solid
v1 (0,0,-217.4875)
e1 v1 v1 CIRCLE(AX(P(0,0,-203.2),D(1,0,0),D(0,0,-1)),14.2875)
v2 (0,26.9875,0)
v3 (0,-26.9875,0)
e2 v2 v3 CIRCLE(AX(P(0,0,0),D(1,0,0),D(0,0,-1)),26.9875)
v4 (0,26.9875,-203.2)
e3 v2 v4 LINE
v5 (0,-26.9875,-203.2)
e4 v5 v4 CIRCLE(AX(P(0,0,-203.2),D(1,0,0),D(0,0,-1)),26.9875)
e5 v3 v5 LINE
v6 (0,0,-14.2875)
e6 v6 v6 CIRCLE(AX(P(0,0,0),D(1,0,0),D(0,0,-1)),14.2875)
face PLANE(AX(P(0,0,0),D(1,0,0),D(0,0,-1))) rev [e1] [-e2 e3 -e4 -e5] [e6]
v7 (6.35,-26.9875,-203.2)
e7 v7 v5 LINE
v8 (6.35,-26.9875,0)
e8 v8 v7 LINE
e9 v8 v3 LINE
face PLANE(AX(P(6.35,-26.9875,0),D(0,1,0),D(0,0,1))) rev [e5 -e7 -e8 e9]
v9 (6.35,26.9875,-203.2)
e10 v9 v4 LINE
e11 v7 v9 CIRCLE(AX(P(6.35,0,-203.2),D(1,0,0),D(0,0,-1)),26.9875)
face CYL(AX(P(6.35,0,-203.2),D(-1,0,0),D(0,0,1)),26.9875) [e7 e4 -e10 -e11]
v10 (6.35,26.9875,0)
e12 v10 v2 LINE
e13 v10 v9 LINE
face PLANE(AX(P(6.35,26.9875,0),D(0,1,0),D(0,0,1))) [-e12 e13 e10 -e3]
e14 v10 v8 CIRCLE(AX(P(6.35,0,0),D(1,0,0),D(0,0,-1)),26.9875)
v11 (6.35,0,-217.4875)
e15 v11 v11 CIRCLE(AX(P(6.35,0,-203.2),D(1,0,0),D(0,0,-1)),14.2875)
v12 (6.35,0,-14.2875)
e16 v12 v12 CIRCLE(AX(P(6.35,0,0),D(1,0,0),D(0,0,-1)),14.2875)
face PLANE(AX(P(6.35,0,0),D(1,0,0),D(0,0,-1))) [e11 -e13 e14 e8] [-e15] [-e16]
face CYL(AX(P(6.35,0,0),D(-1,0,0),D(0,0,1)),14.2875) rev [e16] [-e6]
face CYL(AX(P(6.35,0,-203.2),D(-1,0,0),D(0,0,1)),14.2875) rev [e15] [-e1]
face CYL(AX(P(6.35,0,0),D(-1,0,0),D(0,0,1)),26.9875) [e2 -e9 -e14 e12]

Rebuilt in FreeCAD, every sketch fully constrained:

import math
import FreeCAD as App
import Part
import Sketcher
Q = App.Units.Quantity

doc = App.newDocument("Part")
body = doc.addObject("PartDesign::Body", "Body")

# Sketch on YZ plane
sketch1 = doc.addObject("Sketcher::SketchObject", "Sketch")
body.addObject(sketch1)
sketch1.AttachmentSupport = (doc.YZ_Plane, [""])
sketch1.MapMode = "FlatFace"
sketch1.addGeometry(Part.LineSegment(App.Vector(27, -203, 0), App.Vector(27, 0, 0)), False)
sketch1.addGeometry(Part.ArcOfCircle(Part.Circle(App.Vector(0, 0, 0), App.Vector(0, 0, 1), 27), math.radians(0), math.radians(180)), False)
sketch1.addGeometry(Part.LineSegment(App.Vector(-27, 0, 0), App.Vector(-27, -203, 0)), False)
sketch1.addGeometry(Part.ArcOfCircle(Part.Circle(App.Vector(0, -203, 0), App.Vector(0, 0, 1), 27), math.radians(180), math.radians(360)), False)
sketch1.addGeometry(Part.Circle(App.Vector(0, -203, 0), App.Vector(0, 0, 1), 14), False)
sketch1.addGeometry(Part.Circle(App.Vector(0, 0, 0), App.Vector(0, 0, 1), 14), False)
sketch1.addConstraint(Sketcher.Constraint("Tangent", 0, 2, 1, 1))
sketch1.addConstraint(Sketcher.Constraint("Tangent", 1, 2, 2, 1))
sketch1.addConstraint(Sketcher.Constraint("Tangent", 2, 2, 3, 1))
sketch1.addConstraint(Sketcher.Constraint("Tangent", 3, 2, 0, 1))
sketch1.addConstraint(Sketcher.Constraint("Vertical", 0))
sketch1.addConstraint(Sketcher.Constraint("Vertical", 2))
sketch1.addConstraint(Sketcher.Constraint("Coincident", 1, 3, -1, 1))
sketch1.addConstraint(Sketcher.Constraint("Coincident", 5, 3, -1, 1))
sketch1.addConstraint(Sketcher.Constraint("Coincident", 4, 3, 3, 3))
sketch1.addConstraint(Sketcher.Constraint("Equal", 4, 5))
sketch1.addConstraint(Sketcher.Constraint("DistanceY", 0, 1, 0, 2, Q("8 in")))
sketch1.addConstraint(Sketcher.Constraint("Diameter", 4, Q("1.125 in")))
sketch1.addConstraint(Sketcher.Constraint("Radius", 1, Q("1.0625 in")))
pad1 = doc.addObject("PartDesign::Pad", "Pad")
body.addObject(pad1)
pad1.Profile = sketch1
pad1.Length = Q("0.25 in")

doc.recompute()
